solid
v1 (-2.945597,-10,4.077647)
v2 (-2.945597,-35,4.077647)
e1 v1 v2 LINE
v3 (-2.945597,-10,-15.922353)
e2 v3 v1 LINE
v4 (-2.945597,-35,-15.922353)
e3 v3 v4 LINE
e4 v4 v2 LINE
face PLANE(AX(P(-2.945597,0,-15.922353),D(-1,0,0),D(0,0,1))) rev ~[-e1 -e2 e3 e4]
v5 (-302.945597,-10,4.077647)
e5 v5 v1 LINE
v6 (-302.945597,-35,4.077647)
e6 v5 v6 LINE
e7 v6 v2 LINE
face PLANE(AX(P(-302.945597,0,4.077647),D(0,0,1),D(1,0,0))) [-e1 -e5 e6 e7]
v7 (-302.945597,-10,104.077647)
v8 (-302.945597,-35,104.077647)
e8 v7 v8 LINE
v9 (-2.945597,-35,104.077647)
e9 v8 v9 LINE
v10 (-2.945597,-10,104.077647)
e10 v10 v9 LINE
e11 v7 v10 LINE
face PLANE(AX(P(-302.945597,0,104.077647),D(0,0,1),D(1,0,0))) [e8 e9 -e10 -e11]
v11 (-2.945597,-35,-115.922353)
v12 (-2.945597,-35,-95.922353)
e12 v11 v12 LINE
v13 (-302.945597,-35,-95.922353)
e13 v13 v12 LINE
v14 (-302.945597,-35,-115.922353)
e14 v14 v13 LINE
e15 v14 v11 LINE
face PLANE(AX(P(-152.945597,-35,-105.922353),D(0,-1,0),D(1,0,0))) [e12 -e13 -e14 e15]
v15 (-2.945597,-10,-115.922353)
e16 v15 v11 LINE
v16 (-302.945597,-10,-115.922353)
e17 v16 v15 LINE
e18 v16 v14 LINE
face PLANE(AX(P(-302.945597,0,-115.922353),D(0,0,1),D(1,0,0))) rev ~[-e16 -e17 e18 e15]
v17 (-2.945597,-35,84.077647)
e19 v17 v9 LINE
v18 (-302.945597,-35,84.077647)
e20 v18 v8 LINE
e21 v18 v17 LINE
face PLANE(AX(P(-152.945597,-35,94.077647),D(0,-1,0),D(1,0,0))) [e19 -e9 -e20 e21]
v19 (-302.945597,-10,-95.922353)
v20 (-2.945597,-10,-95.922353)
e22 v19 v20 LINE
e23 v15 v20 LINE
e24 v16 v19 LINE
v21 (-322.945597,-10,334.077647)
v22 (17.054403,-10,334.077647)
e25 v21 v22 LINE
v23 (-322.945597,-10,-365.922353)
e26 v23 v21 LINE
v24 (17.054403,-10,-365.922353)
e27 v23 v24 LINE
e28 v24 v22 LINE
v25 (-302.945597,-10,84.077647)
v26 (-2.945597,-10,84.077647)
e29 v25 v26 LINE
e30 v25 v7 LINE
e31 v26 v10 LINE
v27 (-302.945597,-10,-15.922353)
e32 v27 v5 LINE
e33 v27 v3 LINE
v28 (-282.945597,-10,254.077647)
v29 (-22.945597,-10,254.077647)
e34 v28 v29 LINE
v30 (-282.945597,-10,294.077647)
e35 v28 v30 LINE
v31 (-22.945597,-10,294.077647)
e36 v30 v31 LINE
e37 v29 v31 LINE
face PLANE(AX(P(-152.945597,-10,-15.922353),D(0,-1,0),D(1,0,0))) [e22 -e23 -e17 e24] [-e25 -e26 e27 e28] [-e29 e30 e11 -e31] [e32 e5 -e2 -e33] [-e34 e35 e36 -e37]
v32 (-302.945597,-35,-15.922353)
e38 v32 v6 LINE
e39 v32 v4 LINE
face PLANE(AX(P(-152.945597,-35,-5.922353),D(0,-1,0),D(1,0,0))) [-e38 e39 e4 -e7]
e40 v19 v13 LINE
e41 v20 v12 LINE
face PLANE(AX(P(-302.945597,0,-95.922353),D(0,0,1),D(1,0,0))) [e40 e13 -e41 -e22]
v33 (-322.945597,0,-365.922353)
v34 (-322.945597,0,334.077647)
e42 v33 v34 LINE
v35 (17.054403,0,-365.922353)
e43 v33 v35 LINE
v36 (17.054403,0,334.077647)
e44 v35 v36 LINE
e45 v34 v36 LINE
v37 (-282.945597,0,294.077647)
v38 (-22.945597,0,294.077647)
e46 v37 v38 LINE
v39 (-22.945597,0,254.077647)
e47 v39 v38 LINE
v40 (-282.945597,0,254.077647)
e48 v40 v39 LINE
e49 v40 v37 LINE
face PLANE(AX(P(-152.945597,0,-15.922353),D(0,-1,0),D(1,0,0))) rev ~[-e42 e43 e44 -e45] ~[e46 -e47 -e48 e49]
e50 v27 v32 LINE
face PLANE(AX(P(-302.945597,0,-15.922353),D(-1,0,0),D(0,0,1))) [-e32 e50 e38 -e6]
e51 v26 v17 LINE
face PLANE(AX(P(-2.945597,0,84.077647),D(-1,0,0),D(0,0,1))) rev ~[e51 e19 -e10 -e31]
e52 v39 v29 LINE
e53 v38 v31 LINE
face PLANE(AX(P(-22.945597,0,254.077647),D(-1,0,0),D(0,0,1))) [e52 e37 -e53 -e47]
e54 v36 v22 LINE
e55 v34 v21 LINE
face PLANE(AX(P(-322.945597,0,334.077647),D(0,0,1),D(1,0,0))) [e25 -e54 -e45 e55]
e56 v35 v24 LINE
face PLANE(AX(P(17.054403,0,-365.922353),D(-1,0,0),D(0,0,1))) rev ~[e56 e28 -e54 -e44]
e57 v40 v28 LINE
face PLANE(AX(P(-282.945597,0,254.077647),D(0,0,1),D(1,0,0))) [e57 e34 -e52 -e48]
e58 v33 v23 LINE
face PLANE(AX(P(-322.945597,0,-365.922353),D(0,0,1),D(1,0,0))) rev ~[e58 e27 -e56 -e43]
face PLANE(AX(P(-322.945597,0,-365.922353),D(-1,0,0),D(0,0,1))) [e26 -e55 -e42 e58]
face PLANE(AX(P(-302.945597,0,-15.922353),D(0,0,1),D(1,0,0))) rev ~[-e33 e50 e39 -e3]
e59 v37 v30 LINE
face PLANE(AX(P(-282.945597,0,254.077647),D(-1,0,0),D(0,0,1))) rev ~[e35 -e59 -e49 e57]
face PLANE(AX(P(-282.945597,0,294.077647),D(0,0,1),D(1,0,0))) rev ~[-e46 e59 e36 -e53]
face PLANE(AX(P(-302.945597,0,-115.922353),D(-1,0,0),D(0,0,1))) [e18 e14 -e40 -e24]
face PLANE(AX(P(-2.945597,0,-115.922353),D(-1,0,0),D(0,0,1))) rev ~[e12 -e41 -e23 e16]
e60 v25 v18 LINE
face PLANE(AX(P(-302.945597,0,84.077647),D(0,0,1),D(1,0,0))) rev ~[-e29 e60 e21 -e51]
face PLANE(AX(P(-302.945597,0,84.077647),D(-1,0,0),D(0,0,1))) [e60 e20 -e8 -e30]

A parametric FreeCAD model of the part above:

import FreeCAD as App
import Part
import Sketcher
from FreeCAD import Vector

doc = App.newDocument("Part")
body = doc.addObject("PartDesign::Body", "Body")

# Sketch on XZ plane
sketch1 = doc.addObject("Sketcher::SketchObject", "Sketch")
body.addObject(sketch1)
sketch1.AttachmentSupport = (doc.XZ_Plane, [""])
sketch1.MapMode = "FlatFace"
sketch1.addGeometry(Part.LineSegment(Vector(-323, 334, 0), Vector(-323, -366, 0)), False)
sketch1.addGeometry(Part.LineSegment(Vector(-323, -366, 0), Vector(17, -366, 0)), False)
sketch1.addGeometry(Part.LineSegment(Vector(17, -366, 0), Vector(17, 334, 0)), False)
sketch1.addGeometry(Part.LineSegment(Vector(17, 334, 0), Vector(-323, 334, 0)), False)
sketch1.addGeometry(Part.LineSegment(Vector(-3, -116, 0), Vector(-303, -116, 0)), False)
sketch1.addGeometry(Part.LineSegment(Vector(-303, -116, 0), Vector(-303, -96, 0)), False)
sketch1.addGeometry(Part.LineSegment(Vector(-303, -96, 0), Vector(-3, -96, 0)), False)
sketch1.addGeometry(Part.LineSegment(Vector(-3, -96, 0), Vector(-3, -116, 0)), False)
sketch1.addGeometry(Part.LineSegment(Vector(-3, -16, 0), Vector(-303, -16, 0)), False)
sketch1.addGeometry(Part.LineSegment(Vector(-303, -16, 0), Vector(-303, 4, 0)), False)
sketch1.addGeometry(Part.LineSegment(Vector(-303, 4, 0), Vector(-3, 4, 0)), False)
sketch1.addGeometry(Part.LineSegment(Vector(-3, 4, 0), Vector(-3, -16, 0)), False)
sketch1.addGeometry(Part.LineSegment(Vector(-3, 84, 0), Vector(-303, 84, 0)), False)
sketch1.addGeometry(Part.LineSegment(Vector(-303, 84, 0), Vector(-303, 104, 0)), False)
sketch1.addGeometry(Part.LineSegment(Vector(-303, 104, 0), Vector(-3, 104, 0)), False)
sketch1.addGeometry(Part.LineSegment(Vector(-3, 104, 0), Vector(-3, 84, 0)), False)
sketch1.addGeometry(Part.LineSegment(Vector(-23, 254, 0), Vector(-283, 254, 0)), False)
sketch1.addGeometry(Part.LineSegment(Vector(-283, 254, 0), Vector(-283, 294, 0)), False)
sketch1.addGeometry(Part.LineSegment(Vector(-283, 294, 0), Vector(-23, 294, 0)), False)
sketch1.addGeometry(Part.LineSegment(Vector(-23, 294, 0), Vector(-23, 254, 0)), False)
sketch1.addConstraint(Sketcher.Constraint("Coincident", 0, 2, 1, 1))
sketch1.addConstraint(Sketcher.Constraint("Coincident", 1, 2, 2, 1))
sketch1.addConstraint(Sketcher.Constraint("Coincident", 2, 2, 3, 1))
sketch1.addConstraint(Sketcher.Constraint("Coincident", 3, 2, 0, 1))
sketch1.addConstraint(Sketcher.Constraint("Coincident", 4, 2, 5, 1))
sketch1.addConstraint(Sketcher.Constraint("Coincident", 5, 2, 6, 1))
sketch1.addConstraint(Sketcher.Constraint("Coincident", 6, 2, 7, 1))
sketch1.addConstraint(Sketcher.Constraint("Coincident", 7, 2, 4, 1))
sketch1.addConstraint(Sketcher.Constraint("Coincident", 8, 2, 9, 1))
sketch1.addConstraint(Sketcher.Constraint("Coincident", 9, 2, 10, 1))
sketch1.addConstraint(Sketcher.Constraint("Coincident", 10, 2, 11, 1))
sketch1.addConstraint(Sketcher.Constraint("Coincident", 11, 2, 8, 1))
sketch1.addConstraint(Sketcher.Constraint("Coincident", 12, 2, 13, 1))
sketch1.addConstraint(Sketcher.Constraint("Coincident", 13, 2, 14, 1))
sketch1.addConstraint(Sketcher.Constraint("Coincident", 14, 2, 15, 1))
sketch1.addConstraint(Sketcher.Constraint("Coincident", 15, 2, 12, 1))
sketch1.addConstraint(Sketcher.Constraint("Coincident", 16, 2, 17, 1))
sketch1.addConstraint(Sketcher.Constraint("Coincident", 17, 2, 18, 1))
sketch1.addConstraint(Sketcher.Constraint("Coincident", 18, 2, 19, 1))
sketch1.addConstraint(Sketcher.Constraint("Coincident", 19, 2, 16, 1))
sketch1.addConstraint(Sketcher.Constraint("Vertical", 0))
sketch1.addConstraint(Sketcher.Constraint("Horizontal", 1))
sketch1.addConstraint(Sketcher.Constraint("Vertical", 2))
sketch1.addConstraint(Sketcher.Constraint("Horizontal", 3))
sketch1.addConstraint(Sketcher.Constraint("Horizontal", 4))
sketch1.addConstraint(Sketcher.Constraint("Vertical", 5))
sketch1.addConstraint(Sketcher.Constraint("Horizontal", 6))
sketch1.addConstraint(Sketcher.Constraint("Vertical", 7))
sketch1.addConstraint(Sketcher.Constraint("Horizontal", 8))
sketch1.addConstraint(Sketcher.Constraint("Vertical", 9))
sketch1.addConstraint(Sketcher.Constraint("Horizontal", 10))
sketch1.addConstraint(Sketcher.Constraint("Vertical", 11))
sketch1.addConstraint(Sketcher.Constraint("Horizontal", 12))
sketch1.addConstraint(Sketcher.Constraint("Vertical", 13))
sketch1.addConstraint(Sketcher.Constraint("Horizontal", 14))
sketch1.addConstraint(Sketcher.Constraint("Vertical", 15))
sketch1.addConstraint(Sketcher.Constraint("Horizontal", 16))
sketch1.addConstraint(Sketcher.Constraint("Vertical", 17))
sketch1.addConstraint(Sketcher.Constraint("Horizontal", 18))
sketch1.addConstraint(Sketcher.Constraint("Vertical", 19))
sketch1.addConstraint(Sketcher.Constraint("Vertical", 5, 2, 8, 2))
sketch1.addConstraint(Sketcher.Constraint("Vertical", 7, 2, 10, 2))
sketch1.addConstraint(Sketcher.Constraint("Vertical", 9, 2, 12, 2))
sketch1.addConstraint(Sketcher.Constraint("Vertical", 11, 2, 14, 2))
sketch1.addConstraint(Sketcher.Constraint("Equal", 7, 9))
sketch1.addConstraint(Sketcher.Constraint("Equal", 11, 13))
sketch1.addConstraint(Sketcher.Constraint("DistanceX", 1, 1, 1, 2, 340.0))
sketch1.addConstraint(Sketcher.Constraint("DistanceX", 4, 2, 4, 1, 300.0))
sketch1.addConstraint(Sketcher.Constraint("DistanceX", 16, 2, 16, 1, 260.0))
sketch1.addConstraint(Sketcher.Constraint("DistanceY", 0, 2, 0, 1, 700.0))
sketch1.addConstraint(Sketcher.Constraint("DistanceY", 5, 1, 5, 2, 20.0))
sketch1.addConstraint(Sketcher.Constraint("DistanceY", 17, 1, 17, 2, 40.0))
sketch1.addConstraint(Sketcher.Constraint("DistanceX", 0, 2, 4, 2, 20.0))
sketch1.addConstraint(Sketcher.Constraint("DistanceY", 0, 2, 4, 2, 250.0))
sketch1.addConstraint(Sketcher.Constraint("DistanceY", 5, 2, 8, 2, 80.0))
sketch1.addConstraint(Sketcher.Constraint("DistanceY", 9, 2, 12, 2, 80.0))
sketch1.addConstraint(Sketcher.Constraint("DistanceX", 3, 2, 16, 2, 40.0))
sketch1.addConstraint(Sketcher.Constraint("DistanceY", 16, 2, 3, 2, 80.0))
sketch1.addConstraint(Sketcher.Constraint("DistanceX", 0, 2, -1, 1, 322.945597))
sketch1.addConstraint(Sketcher.Constraint("DistanceY", 0, 2, -1, 1, 365.922353))
pad1 = doc.addObject("PartDesign::Pad", "Pad")
body.addObject(pad1)
pad1.Profile = sketch1
pad1.Length = 10

# Sketch on XZ plane
sketch2 = doc.addObject("Sketcher::SketchObject", "Sketch001")
body.addObject(sketch2)
sketch2.AttachmentSupport = (doc.XZ_Plane, [""])
sketch2.MapMode = "FlatFace"
sketch2.addGeometry(Part.LineSegment(Vector(-303, 104, 0), Vector(-303, 84, 0)), False)
sketch2.addGeometry(Part.LineSegment(Vector(-303, 84, 0), Vector(-3, 84, 0)), False)
sketch2.addGeometry(Part.LineSegment(Vector(-3, 84, 0), Vector(-3, 104, 0)), False)
sketch2.addGeometry(Part.LineSegment(Vector(-3, 104, 0), Vector(-303, 104, 0)), False)
sketch2.addGeometry(Part.LineSegment(Vector(-303, 4, 0), Vector(-303, -16, 0)), False)
sketch2.addGeometry(Part.LineSegment(Vector(-303, -16, 0), Vector(-3, -16, 0)), False)
sketch2.addGeometry(Part.LineSegment(Vector(-3, -16, 0), Vector(-3, 4, 0)), False)
sketch2.addGeometry(Part.LineSegment(Vector(-3, 4, 0), Vector(-303, 4, 0)), False)
sketch2.addGeometry(Part.LineSegment(Vector(-303, -96, 0), Vector(-303, -116, 0)), False)
sketch2.addGeometry(Part.LineSegment(Vector(-303, -116, 0), Vector(-3, -116, 0)), False)
sketch2.addGeometry(Part.LineSegment(Vector(-3, -116, 0), Vector(-3, -96, 0)), False)
sketch2.addGeometry(Part.LineSegment(Vector(-3, -96, 0), Vector(-303, -96, 0)), False)
sketch2.addConstraint(Sketcher.Constraint("Coincident", 0, 2, 1, 1))
sketch2.addConstraint(Sketcher.Constraint("Coincident", 1, 2, 2, 1))
sketch2.addConstraint(Sketcher.Constraint("Coincident", 2, 2, 3, 1))
sketch2.addConstraint(Sketcher.Constraint("Coincident", 3, 2, 0, 1))
sketch2.addConstraint(Sketcher.Constraint("Coincident", 4, 2, 5, 1))
sketch2.addConstraint(Sketcher.Constraint("Coincident", 5, 2, 6, 1))
sketch2.addConstraint(Sketcher.Constraint("Coincident", 6, 2, 7, 1))
sketch2.addConstraint(Sketcher.Constraint("Coincident", 7, 2, 4, 1))
sketch2.addConstraint(Sketcher.Constraint("Coincident", 8, 2, 9, 1))
sketch2.addConstraint(Sketcher.Constraint("Coincident", 9, 2, 10, 1))
sketch2.addConstraint(Sketcher.Constraint("Coincident", 10, 2, 11, 1))
sketch2.addConstraint(Sketcher.Constraint("Coincident", 11, 2, 8, 1))
sketch2.addConstraint(Sketcher.Constraint("Vertical", 0))
sketch2.addConstraint(Sketcher.Constraint("Horizontal", 1))
sketch2.addConstraint(Sketcher.Constraint("Vertical", 2))
sketch2.addConstraint(Sketcher.Constraint("Horizontal", 3))
sketch2.addConstraint(Sketcher.Constraint("Vertical", 4))
sketch2.addConstraint(Sketcher.Constraint("Horizontal", 5))
sketch2.addConstraint(Sketcher.Constraint("Vertical", 6))
sketch2.addConstraint(Sketcher.Constraint("Horizontal", 7))
sketch2.addConstraint(Sketcher.Constraint("Vertical", 8))
sketch2.addConstraint(Sketcher.Constraint("Horizontal", 9))
sketch2.addConstraint(Sketcher.Constraint("Vertical", 10))
sketch2.addConstraint(Sketcher.Constraint("Horizontal", 11))
sketch2.addConstraint(Sketcher.Constraint("Vertical", 3, 2, 4, 2))
sketch2.addConstraint(Sketcher.Constraint("Vertical", 2, 2, 5, 2))
sketch2.addConstraint(Sketcher.Constraint("Vertical", 7, 2, 8, 2))
sketch2.addConstraint(Sketcher.Constraint("Vertical", 6, 2, 9, 2))
sketch2.addConstraint(Sketcher.Constraint("Equal", 2, 4))
sketch2.addConstraint(Sketcher.Constraint("Equal", 6, 8))
sketch2.addConstraint(Sketcher.Constraint("DistanceX", 1, 1, 1, 2, 300.0))
sketch2.addConstraint(Sketcher.Constraint("DistanceY", 0, 2, 0, 1, 20.0))
sketch2.addConstraint(Sketcher.Constraint("DistanceY", 4, 2, 0, 2, 100.0))
sketch2.addConstraint(Sketcher.Constraint("DistanceY", 8, 2, 4, 2, 100.0))
sketch2.addConstraint(Sketcher.Constraint("DistanceX", 0, 2, -1, 1, 302.945597))
sketch2.addConstraint(Sketcher.Constraint("DistanceY", -1, 1, 0, 2, 84.077647))
pad2 = doc.addObject("PartDesign::Pad", "Pad001")
body.addObject(pad2)
pad2.Profile = sketch2
pad2.Length = 35

doc.recompute()
